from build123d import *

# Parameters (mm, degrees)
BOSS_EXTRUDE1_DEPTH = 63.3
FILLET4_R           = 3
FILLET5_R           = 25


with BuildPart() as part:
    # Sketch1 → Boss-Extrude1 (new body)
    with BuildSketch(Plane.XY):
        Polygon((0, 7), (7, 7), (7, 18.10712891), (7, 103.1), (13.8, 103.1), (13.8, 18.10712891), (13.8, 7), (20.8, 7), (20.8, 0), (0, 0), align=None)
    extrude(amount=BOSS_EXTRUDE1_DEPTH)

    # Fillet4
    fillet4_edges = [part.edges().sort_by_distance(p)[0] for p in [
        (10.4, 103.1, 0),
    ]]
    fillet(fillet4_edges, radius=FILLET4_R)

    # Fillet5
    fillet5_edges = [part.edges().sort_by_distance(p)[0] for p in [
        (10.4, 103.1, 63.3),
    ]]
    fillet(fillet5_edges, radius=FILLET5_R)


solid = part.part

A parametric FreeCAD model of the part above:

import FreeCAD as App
import Part
import Sketcher

V = App.Vector
Q = App.Units.Quantity


def edges_at(feature, points):
    """Names of the edges that pass closest to the given points."""
    edges = feature.Shape.Edges
    near = lambda p: min(range(len(edges)), key=lambda i: edges[i].distToShape(Part.Vertex(*p))[0])
    return sorted({f"Edge{near(p) + 1}" for p in points})


def add_polygon(sketch, points):
    """Adds a closed chain of lines whose ends are joined by coincident constraints."""
    first, n = sketch.GeometryCount, len(points)
    for a, b in zip(points, points[1:] + points[:1]):
        sketch.addGeometry(Part.LineSegment(App.Vector(*a, 0), App.Vector(*b, 0)), False)
    for i in range(n):
        sketch.addConstraint(Sketcher.Constraint("Coincident", first + i, 2, first + (i + 1) % n, 1))

doc = App.newDocument("Part")
body = doc.addObject("PartDesign::Body", "Body")

sketch1 = body.newObject("Sketcher::SketchObject", "Sketch")
sketch1.AttachmentSupport = (doc.getObject("XY_Plane"), [""])
sketch1.MapMode = "FlatFace"
add_polygon(sketch1, [(7, 7), (0, 7), (0, 0), (21, 0), (21, 7), (14, 7), (14, 103), (7, 103)])
sketch1.addConstraint(Sketcher.Constraint("Horizontal", 0))
sketch1.addConstraint(Sketcher.Constraint("Vertical", 1))
sketch1.addConstraint(Sketcher.Constraint("Horizontal", 2))
sketch1.addConstraint(Sketcher.Constraint("Vertical", 3))
sketch1.addConstraint(Sketcher.Constraint("Horizontal", 4))
sketch1.addConstraint(Sketcher.Constraint("Vertical", 5))
sketch1.addConstraint(Sketcher.Constraint("Horizontal", 6))
sketch1.addConstraint(Sketcher.Constraint("Vertical", 7))
sketch1.addConstraint(Sketcher.Constraint("Coincident", 1, 2, -1, 1))
sketch1.addConstraint(Sketcher.Constraint("Horizontal", 0, 2, 3, 2))
sketch1.addConstraint(Sketcher.Constraint("Equal", 0, 4))
sketch1.addConstraint(Sketcher.Constraint("Equal", 4, 1))
sketch1.addConstraint(Sketcher.Constraint("DistanceX", 0, 2, 0, 1, Q("7 mm")))
sketch1.addConstraint(Sketcher.Constraint("DistanceX", 2, 1, 2, 2, Q("20.8 mm")))
sketch1.addConstraint(Sketcher.Constraint("DistanceY", 5, 1, 5, 2, Q("96.1 mm")))
pad1 = body.newObject("PartDesign::Pad", "Pad")
pad1.Profile = sketch1
pad1.Length = 63.3
doc.recompute()

fillet = body.newObject("PartDesign::Fillet", "Fillet")
fillet.Base = (pad1, edges_at(pad1, [(10.4, 103.1, 0)]))
fillet.Radius = 3
doc.recompute()

fillet2 = body.newObject("PartDesign::Fillet", "Fillet001")
fillet2.Base = (fillet, edges_at(fillet, [(10.4, 103.1, 63.3)]))
fillet2.Radius = 25

doc.recompute()
